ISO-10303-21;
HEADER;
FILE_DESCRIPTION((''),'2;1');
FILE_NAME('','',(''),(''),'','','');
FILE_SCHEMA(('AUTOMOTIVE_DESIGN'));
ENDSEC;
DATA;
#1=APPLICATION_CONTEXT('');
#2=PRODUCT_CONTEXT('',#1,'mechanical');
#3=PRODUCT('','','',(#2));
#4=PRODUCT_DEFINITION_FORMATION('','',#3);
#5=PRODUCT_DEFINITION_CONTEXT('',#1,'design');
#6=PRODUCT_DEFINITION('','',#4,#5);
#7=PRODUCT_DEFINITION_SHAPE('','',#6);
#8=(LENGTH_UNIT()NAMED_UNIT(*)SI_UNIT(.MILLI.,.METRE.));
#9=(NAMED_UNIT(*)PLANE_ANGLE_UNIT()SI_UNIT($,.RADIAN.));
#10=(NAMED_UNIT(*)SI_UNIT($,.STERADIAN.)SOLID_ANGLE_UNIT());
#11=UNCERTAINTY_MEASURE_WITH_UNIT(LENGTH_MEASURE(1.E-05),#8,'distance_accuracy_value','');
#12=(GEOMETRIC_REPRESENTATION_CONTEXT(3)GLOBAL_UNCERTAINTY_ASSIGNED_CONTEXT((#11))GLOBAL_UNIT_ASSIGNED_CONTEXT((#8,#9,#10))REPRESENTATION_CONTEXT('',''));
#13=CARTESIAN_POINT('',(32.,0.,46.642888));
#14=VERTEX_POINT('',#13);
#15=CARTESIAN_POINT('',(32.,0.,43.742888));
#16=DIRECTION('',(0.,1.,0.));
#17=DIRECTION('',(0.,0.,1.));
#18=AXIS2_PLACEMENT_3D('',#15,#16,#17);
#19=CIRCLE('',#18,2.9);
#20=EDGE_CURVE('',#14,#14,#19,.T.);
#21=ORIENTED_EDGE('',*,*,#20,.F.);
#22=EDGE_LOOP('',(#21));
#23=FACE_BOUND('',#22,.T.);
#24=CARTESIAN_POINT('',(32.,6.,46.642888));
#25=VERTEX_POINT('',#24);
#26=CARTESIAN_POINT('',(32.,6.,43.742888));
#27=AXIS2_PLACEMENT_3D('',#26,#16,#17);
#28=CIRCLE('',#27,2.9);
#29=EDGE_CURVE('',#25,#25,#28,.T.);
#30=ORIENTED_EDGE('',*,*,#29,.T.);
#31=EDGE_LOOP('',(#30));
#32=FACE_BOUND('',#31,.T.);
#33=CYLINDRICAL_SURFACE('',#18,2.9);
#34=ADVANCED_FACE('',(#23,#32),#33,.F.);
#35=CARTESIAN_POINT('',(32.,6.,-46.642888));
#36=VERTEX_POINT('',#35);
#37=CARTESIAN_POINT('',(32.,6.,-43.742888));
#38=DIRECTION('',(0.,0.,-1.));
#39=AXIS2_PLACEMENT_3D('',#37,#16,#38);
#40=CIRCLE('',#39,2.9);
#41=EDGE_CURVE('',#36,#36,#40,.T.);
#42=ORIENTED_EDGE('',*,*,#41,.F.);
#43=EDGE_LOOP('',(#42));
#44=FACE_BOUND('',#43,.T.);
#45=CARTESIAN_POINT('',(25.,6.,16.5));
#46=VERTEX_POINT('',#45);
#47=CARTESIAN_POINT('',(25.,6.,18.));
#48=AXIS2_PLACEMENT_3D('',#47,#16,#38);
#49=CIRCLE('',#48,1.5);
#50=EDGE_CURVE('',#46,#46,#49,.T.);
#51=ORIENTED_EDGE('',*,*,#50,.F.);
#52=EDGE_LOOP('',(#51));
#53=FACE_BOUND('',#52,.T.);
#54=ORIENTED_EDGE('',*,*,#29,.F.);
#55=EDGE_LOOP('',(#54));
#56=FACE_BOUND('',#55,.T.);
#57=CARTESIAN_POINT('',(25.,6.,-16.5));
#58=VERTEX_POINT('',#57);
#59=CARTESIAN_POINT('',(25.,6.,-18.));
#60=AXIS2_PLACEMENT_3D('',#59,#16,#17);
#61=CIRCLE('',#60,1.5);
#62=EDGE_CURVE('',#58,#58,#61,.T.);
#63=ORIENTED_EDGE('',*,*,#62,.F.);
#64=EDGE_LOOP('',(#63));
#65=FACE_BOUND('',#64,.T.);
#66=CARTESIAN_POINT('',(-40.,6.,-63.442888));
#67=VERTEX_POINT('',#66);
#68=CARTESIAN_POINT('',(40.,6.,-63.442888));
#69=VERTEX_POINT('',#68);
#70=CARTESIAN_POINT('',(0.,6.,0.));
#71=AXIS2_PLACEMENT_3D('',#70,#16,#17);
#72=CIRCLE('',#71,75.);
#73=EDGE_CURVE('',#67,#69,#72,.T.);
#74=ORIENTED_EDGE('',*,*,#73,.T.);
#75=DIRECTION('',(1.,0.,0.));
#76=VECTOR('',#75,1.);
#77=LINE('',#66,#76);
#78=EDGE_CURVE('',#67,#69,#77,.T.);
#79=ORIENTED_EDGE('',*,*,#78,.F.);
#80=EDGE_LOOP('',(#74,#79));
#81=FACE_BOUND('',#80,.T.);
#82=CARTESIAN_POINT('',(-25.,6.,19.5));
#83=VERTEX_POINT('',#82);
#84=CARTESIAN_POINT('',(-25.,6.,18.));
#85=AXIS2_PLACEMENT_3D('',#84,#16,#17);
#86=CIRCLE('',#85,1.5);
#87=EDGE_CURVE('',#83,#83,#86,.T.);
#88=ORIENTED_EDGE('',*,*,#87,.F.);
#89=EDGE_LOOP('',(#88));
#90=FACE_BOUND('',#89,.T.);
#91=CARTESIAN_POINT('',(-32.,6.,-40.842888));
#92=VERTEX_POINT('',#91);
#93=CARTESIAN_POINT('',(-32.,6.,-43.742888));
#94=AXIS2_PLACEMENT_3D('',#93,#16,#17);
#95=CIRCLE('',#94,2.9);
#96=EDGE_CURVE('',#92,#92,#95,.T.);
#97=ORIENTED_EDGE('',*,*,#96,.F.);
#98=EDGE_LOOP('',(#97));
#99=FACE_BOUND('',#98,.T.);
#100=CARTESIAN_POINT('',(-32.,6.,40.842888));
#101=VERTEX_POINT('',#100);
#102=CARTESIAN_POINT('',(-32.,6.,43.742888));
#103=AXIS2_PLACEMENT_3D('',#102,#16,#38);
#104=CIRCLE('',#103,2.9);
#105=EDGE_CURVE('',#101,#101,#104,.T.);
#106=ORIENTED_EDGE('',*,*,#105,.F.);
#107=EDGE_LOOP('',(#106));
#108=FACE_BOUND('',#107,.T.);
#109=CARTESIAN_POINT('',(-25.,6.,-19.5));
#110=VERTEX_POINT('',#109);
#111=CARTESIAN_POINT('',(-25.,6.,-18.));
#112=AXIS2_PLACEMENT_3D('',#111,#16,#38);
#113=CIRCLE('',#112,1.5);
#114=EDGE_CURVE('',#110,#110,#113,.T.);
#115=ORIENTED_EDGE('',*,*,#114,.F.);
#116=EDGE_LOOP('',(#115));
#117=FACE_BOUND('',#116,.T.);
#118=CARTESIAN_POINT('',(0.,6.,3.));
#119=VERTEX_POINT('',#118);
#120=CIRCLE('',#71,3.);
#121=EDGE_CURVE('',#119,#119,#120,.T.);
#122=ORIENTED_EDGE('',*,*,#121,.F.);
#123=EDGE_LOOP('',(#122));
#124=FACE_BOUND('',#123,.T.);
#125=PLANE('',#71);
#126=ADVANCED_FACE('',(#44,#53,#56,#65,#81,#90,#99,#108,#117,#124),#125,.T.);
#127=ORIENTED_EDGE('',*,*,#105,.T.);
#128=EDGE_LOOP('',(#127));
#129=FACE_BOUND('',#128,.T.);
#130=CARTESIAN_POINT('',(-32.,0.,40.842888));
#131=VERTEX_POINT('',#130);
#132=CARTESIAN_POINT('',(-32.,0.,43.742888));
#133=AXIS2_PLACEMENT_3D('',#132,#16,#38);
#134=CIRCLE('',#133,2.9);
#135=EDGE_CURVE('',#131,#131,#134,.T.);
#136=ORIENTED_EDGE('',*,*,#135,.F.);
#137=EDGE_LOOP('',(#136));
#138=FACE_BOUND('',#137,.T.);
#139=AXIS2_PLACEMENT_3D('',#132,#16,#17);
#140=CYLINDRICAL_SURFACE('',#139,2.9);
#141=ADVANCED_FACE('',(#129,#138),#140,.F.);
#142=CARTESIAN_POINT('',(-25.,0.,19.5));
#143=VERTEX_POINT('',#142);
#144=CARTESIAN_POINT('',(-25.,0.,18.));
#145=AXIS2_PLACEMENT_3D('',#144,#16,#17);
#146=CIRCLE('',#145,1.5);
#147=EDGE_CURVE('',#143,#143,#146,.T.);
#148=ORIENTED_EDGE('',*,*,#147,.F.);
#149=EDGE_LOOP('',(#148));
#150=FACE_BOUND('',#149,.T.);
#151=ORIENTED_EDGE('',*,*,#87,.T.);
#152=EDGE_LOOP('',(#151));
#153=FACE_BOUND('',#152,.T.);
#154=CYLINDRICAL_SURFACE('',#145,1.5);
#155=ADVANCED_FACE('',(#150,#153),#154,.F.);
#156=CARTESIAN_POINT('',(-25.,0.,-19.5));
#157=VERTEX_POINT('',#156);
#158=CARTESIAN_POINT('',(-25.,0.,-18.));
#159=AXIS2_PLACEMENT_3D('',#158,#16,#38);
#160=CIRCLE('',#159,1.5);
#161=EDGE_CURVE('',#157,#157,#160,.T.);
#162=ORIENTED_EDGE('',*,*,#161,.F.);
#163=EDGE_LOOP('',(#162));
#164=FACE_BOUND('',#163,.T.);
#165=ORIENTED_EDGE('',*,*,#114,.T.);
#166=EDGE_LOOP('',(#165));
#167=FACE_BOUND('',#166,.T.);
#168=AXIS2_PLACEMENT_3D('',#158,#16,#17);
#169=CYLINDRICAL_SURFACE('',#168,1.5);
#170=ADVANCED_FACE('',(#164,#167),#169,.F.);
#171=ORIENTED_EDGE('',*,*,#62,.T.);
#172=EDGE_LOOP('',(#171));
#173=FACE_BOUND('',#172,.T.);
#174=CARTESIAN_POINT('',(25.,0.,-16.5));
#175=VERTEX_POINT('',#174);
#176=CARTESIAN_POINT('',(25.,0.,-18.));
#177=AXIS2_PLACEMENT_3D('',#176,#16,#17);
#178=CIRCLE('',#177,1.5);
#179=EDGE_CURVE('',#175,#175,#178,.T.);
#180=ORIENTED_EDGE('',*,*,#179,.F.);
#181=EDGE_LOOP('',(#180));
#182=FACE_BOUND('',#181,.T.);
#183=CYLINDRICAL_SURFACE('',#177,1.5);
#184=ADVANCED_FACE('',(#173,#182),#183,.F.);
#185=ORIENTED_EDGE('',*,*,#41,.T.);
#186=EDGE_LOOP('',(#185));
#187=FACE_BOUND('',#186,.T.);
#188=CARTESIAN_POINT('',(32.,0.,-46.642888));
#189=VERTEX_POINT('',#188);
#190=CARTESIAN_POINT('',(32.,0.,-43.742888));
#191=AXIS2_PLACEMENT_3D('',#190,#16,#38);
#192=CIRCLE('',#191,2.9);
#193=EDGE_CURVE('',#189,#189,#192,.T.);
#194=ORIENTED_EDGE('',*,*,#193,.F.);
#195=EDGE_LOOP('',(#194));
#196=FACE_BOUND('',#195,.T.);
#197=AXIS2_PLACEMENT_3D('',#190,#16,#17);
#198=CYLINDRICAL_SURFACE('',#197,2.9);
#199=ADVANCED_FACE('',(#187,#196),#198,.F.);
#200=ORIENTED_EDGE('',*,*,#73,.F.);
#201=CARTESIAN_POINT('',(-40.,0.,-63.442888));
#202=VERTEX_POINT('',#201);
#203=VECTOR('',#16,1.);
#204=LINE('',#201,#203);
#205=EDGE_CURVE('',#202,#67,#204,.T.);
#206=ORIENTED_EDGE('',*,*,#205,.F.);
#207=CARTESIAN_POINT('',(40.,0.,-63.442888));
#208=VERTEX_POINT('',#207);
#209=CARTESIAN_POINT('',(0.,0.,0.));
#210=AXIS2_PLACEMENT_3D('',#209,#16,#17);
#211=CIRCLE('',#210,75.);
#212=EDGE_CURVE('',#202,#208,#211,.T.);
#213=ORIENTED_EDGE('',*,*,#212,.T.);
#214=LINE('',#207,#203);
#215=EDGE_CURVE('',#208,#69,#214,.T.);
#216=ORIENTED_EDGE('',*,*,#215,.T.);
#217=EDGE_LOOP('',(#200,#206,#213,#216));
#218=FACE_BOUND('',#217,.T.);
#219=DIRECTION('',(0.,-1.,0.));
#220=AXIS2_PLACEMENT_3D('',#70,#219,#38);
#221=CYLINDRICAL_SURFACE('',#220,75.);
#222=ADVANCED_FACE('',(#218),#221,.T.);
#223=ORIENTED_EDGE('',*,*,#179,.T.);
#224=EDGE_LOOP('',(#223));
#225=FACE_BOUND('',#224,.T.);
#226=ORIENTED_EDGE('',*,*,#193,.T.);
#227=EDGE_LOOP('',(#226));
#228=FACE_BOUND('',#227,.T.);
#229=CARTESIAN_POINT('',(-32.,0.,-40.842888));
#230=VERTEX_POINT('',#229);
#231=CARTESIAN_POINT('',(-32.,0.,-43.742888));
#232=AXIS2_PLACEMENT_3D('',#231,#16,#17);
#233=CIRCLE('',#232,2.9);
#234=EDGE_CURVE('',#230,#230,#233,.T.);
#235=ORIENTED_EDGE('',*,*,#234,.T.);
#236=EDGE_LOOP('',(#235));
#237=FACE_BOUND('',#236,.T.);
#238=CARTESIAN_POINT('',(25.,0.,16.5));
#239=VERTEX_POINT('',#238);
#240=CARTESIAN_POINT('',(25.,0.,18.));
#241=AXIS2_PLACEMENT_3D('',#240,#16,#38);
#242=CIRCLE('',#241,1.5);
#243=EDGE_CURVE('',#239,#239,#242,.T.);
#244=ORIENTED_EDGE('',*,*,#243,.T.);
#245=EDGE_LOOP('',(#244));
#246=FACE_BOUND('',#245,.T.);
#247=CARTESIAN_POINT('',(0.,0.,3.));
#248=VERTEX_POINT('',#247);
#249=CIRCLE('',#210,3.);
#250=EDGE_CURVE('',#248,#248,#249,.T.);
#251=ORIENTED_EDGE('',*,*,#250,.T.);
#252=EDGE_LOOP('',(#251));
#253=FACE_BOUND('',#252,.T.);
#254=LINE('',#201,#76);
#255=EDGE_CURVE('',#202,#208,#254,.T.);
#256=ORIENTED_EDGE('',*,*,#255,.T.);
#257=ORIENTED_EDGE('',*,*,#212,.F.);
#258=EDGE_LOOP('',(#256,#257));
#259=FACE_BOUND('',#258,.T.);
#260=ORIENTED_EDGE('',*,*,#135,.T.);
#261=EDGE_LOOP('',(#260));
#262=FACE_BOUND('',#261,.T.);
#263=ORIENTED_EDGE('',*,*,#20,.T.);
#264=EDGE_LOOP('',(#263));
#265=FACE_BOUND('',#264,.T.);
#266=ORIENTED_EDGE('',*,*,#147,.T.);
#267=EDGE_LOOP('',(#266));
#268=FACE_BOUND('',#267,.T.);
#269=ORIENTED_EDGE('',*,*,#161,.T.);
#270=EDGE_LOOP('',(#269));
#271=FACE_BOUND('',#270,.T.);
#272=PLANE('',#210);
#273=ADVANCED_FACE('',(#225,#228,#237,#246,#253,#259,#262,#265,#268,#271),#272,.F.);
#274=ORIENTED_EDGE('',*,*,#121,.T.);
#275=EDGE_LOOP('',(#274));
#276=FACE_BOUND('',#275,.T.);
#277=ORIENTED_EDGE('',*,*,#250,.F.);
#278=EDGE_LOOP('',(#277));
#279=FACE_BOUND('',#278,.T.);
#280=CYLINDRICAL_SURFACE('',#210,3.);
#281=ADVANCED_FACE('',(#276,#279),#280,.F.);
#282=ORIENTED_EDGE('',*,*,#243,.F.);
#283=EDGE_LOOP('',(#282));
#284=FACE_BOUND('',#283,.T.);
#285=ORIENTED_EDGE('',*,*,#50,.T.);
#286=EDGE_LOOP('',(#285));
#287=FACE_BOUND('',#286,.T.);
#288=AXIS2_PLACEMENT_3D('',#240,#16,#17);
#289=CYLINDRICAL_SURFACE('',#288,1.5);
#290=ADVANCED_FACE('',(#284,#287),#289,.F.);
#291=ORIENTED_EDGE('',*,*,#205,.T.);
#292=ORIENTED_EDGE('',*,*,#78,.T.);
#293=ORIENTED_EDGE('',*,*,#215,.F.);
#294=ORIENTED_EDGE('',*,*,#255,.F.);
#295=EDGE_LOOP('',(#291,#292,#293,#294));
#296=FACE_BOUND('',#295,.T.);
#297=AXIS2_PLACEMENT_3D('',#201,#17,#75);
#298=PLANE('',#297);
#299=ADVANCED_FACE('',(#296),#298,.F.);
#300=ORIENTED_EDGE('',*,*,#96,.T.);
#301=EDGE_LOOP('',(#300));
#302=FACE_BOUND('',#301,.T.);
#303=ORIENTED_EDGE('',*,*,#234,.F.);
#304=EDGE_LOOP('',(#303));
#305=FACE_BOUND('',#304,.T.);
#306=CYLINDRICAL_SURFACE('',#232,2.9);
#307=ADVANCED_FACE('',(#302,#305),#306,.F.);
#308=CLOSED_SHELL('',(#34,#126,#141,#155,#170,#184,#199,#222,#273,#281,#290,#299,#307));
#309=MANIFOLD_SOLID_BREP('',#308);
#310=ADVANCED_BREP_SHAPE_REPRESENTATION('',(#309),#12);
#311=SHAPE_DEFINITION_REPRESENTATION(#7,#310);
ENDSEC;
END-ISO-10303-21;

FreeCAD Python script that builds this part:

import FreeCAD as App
import Part
import Sketcher

V = App.Vector


def add_polygon(sketch, points):
    """Adds a closed chain of lines whose ends are joined by coincident constraints."""
    first, n = sketch.GeometryCount, len(points)
    for a, b in zip(points, points[1:] + points[:1]):
        sketch.addGeometry(Part.LineSegment(App.Vector(*a, 0), App.Vector(*b, 0)), False)
    for i in range(n):
        sketch.addConstraint(Sketcher.Constraint("Coincident", first + i, 2, first + (i + 1) % n, 1))

doc = App.newDocument("Part")
body = doc.addObject("PartDesign::Body", "Body")

# Sketch on XZ plane
sketch1 = doc.addObject("Sketcher::SketchObject", "Sketch")
body.addObject(sketch1)
sketch1.AttachmentSupport = (doc.XZ_Plane, [""])
sketch1.MapMode = "FlatFace"
sketch1.addGeometry(Part.Circle(V(0, 0, 0), V(0, 0, 1), 75), False)
sketch1.addConstraint([
    Sketcher.Constraint("Coincident", 0, 3, -1, 1),
    Sketcher.Constraint("Diameter", 0, 150.0),
])
pad1 = doc.addObject("PartDesign::Pad", "Pad")
body.addObject(pad1)
pad1.Profile = sketch1
pad1.Length = 6
pad1.Reversed = True

# Sketch on XZ plane
sketch2 = doc.addObject("Sketcher::SketchObject", "Sketch001")
body.addObject(sketch2)
sketch2.AttachmentSupport = (doc.XZ_Plane, [""])
sketch2.MapMode = "FlatFace"
sketch2.AttachmentOffset = App.Placement(V(0, 0, -6), App.Rotation())
sketch2.addGeometry(Part.Circle(V(-32, -43.7, 0), V(0, 0, 1), 2.9), False)  # 0
sketch2.addGeometry(Part.Circle(V(32, -43.7, 0), V(0, 0, 1), 2.9), False)  # 1
sketch2.addGeometry(Part.Circle(V(0, 0, 0), V(0, 0, 1), 3), False)  # 2
sketch2.addGeometry(Part.Circle(V(-32, 43.7, 0), V(0, 0, 1), 2.9), False)  # 3
sketch2.addGeometry(Part.Circle(V(32, 43.7, 0), V(0, 0, 1), 2.9), False)  # 4
sketch2.addGeometry(Part.Circle(V(25, -18, 0), V(0, 0, 1), 1.5), False)  # 5
sketch2.addGeometry(Part.Circle(V(-25, -18, 0), V(0, 0, 1), 1.5), False)  # 6
sketch2.addGeometry(Part.Circle(V(-25, 18, 0), V(0, 0, 1), 1.5), False)  # 7
sketch2.addGeometry(Part.Circle(V(25, 18, 0), V(0, 0, 1), 1.5), False)  # 8
add_polygon(sketch2, [(-40, -86.7), (-40, -63.4), (40, -63.4), (40, -86.7)])  # lines 9-12
sketch2.addConstraint([
    Sketcher.Constraint("Vertical", 9),
    Sketcher.Constraint("Horizontal", 10),
    Sketcher.Constraint("Vertical", 11),
    Sketcher.Constraint("Horizontal", 12),
    Sketcher.Constraint("Coincident", 2, 3, -1, 1),
    Sketcher.Constraint("Equal", 0, 1),
    Sketcher.Constraint("Equal", 1, 3),
    Sketcher.Constraint("Equal", 3, 4),
    Sketcher.Constraint("Equal", 5, 6),
    Sketcher.Constraint("Equal", 6, 7),
    Sketcher.Constraint("Equal", 7, 8),
    Sketcher.Constraint("Symmetric", 1, 3, 3, 3, -1, 1),
    Sketcher.Constraint("Symmetric", 0, 3, 4, 3, -1, 1),
    Sketcher.Constraint("Symmetric", 5, 3, 7, 3, -1, 1),
    Sketcher.Constraint("Symmetric", 6, 3, 8, 3, -1, 1),
    Sketcher.Constraint("Symmetric", 0, 3, 1, 3, -2),
    Sketcher.Constraint("Symmetric", 5, 3, 6, 3, -2),
    Sketcher.Constraint("Diameter", 2, 6.0),
    Sketcher.Constraint("Diameter", 5, 3.0),
    Sketcher.Constraint("Diameter", 0, 5.8),
    Sketcher.Constraint("DistanceX", 10, 1, 10, 2, 80.0),
    Sketcher.Constraint("DistanceX", 0, 3, -1, 1, 32.0),
    Sketcher.Constraint("DistanceX", -1, 1, 5, 3, 25.0),
    Sketcher.Constraint("DistanceY", 5, 3, -1, 1, 18.0),
    Sketcher.Constraint("DistanceX", 9, 2, -1, 1, 40.0),
    Sketcher.Constraint("DistanceY", 9, 2, 0, 3, 19.7),
    Sketcher.Constraint("DistanceY", 9, 1, 9, 2, 23.303756),
    Sketcher.Constraint("DistanceY", 0, 3, -1, 1, 43.742888),
])
pocket1 = doc.addObject("PartDesign::Pocket", "Pocket")
body.addObject(pocket1)
pocket1.Profile = sketch2
pocket1.Length = 6
pocket1.Reversed = True

doc.recompute()
